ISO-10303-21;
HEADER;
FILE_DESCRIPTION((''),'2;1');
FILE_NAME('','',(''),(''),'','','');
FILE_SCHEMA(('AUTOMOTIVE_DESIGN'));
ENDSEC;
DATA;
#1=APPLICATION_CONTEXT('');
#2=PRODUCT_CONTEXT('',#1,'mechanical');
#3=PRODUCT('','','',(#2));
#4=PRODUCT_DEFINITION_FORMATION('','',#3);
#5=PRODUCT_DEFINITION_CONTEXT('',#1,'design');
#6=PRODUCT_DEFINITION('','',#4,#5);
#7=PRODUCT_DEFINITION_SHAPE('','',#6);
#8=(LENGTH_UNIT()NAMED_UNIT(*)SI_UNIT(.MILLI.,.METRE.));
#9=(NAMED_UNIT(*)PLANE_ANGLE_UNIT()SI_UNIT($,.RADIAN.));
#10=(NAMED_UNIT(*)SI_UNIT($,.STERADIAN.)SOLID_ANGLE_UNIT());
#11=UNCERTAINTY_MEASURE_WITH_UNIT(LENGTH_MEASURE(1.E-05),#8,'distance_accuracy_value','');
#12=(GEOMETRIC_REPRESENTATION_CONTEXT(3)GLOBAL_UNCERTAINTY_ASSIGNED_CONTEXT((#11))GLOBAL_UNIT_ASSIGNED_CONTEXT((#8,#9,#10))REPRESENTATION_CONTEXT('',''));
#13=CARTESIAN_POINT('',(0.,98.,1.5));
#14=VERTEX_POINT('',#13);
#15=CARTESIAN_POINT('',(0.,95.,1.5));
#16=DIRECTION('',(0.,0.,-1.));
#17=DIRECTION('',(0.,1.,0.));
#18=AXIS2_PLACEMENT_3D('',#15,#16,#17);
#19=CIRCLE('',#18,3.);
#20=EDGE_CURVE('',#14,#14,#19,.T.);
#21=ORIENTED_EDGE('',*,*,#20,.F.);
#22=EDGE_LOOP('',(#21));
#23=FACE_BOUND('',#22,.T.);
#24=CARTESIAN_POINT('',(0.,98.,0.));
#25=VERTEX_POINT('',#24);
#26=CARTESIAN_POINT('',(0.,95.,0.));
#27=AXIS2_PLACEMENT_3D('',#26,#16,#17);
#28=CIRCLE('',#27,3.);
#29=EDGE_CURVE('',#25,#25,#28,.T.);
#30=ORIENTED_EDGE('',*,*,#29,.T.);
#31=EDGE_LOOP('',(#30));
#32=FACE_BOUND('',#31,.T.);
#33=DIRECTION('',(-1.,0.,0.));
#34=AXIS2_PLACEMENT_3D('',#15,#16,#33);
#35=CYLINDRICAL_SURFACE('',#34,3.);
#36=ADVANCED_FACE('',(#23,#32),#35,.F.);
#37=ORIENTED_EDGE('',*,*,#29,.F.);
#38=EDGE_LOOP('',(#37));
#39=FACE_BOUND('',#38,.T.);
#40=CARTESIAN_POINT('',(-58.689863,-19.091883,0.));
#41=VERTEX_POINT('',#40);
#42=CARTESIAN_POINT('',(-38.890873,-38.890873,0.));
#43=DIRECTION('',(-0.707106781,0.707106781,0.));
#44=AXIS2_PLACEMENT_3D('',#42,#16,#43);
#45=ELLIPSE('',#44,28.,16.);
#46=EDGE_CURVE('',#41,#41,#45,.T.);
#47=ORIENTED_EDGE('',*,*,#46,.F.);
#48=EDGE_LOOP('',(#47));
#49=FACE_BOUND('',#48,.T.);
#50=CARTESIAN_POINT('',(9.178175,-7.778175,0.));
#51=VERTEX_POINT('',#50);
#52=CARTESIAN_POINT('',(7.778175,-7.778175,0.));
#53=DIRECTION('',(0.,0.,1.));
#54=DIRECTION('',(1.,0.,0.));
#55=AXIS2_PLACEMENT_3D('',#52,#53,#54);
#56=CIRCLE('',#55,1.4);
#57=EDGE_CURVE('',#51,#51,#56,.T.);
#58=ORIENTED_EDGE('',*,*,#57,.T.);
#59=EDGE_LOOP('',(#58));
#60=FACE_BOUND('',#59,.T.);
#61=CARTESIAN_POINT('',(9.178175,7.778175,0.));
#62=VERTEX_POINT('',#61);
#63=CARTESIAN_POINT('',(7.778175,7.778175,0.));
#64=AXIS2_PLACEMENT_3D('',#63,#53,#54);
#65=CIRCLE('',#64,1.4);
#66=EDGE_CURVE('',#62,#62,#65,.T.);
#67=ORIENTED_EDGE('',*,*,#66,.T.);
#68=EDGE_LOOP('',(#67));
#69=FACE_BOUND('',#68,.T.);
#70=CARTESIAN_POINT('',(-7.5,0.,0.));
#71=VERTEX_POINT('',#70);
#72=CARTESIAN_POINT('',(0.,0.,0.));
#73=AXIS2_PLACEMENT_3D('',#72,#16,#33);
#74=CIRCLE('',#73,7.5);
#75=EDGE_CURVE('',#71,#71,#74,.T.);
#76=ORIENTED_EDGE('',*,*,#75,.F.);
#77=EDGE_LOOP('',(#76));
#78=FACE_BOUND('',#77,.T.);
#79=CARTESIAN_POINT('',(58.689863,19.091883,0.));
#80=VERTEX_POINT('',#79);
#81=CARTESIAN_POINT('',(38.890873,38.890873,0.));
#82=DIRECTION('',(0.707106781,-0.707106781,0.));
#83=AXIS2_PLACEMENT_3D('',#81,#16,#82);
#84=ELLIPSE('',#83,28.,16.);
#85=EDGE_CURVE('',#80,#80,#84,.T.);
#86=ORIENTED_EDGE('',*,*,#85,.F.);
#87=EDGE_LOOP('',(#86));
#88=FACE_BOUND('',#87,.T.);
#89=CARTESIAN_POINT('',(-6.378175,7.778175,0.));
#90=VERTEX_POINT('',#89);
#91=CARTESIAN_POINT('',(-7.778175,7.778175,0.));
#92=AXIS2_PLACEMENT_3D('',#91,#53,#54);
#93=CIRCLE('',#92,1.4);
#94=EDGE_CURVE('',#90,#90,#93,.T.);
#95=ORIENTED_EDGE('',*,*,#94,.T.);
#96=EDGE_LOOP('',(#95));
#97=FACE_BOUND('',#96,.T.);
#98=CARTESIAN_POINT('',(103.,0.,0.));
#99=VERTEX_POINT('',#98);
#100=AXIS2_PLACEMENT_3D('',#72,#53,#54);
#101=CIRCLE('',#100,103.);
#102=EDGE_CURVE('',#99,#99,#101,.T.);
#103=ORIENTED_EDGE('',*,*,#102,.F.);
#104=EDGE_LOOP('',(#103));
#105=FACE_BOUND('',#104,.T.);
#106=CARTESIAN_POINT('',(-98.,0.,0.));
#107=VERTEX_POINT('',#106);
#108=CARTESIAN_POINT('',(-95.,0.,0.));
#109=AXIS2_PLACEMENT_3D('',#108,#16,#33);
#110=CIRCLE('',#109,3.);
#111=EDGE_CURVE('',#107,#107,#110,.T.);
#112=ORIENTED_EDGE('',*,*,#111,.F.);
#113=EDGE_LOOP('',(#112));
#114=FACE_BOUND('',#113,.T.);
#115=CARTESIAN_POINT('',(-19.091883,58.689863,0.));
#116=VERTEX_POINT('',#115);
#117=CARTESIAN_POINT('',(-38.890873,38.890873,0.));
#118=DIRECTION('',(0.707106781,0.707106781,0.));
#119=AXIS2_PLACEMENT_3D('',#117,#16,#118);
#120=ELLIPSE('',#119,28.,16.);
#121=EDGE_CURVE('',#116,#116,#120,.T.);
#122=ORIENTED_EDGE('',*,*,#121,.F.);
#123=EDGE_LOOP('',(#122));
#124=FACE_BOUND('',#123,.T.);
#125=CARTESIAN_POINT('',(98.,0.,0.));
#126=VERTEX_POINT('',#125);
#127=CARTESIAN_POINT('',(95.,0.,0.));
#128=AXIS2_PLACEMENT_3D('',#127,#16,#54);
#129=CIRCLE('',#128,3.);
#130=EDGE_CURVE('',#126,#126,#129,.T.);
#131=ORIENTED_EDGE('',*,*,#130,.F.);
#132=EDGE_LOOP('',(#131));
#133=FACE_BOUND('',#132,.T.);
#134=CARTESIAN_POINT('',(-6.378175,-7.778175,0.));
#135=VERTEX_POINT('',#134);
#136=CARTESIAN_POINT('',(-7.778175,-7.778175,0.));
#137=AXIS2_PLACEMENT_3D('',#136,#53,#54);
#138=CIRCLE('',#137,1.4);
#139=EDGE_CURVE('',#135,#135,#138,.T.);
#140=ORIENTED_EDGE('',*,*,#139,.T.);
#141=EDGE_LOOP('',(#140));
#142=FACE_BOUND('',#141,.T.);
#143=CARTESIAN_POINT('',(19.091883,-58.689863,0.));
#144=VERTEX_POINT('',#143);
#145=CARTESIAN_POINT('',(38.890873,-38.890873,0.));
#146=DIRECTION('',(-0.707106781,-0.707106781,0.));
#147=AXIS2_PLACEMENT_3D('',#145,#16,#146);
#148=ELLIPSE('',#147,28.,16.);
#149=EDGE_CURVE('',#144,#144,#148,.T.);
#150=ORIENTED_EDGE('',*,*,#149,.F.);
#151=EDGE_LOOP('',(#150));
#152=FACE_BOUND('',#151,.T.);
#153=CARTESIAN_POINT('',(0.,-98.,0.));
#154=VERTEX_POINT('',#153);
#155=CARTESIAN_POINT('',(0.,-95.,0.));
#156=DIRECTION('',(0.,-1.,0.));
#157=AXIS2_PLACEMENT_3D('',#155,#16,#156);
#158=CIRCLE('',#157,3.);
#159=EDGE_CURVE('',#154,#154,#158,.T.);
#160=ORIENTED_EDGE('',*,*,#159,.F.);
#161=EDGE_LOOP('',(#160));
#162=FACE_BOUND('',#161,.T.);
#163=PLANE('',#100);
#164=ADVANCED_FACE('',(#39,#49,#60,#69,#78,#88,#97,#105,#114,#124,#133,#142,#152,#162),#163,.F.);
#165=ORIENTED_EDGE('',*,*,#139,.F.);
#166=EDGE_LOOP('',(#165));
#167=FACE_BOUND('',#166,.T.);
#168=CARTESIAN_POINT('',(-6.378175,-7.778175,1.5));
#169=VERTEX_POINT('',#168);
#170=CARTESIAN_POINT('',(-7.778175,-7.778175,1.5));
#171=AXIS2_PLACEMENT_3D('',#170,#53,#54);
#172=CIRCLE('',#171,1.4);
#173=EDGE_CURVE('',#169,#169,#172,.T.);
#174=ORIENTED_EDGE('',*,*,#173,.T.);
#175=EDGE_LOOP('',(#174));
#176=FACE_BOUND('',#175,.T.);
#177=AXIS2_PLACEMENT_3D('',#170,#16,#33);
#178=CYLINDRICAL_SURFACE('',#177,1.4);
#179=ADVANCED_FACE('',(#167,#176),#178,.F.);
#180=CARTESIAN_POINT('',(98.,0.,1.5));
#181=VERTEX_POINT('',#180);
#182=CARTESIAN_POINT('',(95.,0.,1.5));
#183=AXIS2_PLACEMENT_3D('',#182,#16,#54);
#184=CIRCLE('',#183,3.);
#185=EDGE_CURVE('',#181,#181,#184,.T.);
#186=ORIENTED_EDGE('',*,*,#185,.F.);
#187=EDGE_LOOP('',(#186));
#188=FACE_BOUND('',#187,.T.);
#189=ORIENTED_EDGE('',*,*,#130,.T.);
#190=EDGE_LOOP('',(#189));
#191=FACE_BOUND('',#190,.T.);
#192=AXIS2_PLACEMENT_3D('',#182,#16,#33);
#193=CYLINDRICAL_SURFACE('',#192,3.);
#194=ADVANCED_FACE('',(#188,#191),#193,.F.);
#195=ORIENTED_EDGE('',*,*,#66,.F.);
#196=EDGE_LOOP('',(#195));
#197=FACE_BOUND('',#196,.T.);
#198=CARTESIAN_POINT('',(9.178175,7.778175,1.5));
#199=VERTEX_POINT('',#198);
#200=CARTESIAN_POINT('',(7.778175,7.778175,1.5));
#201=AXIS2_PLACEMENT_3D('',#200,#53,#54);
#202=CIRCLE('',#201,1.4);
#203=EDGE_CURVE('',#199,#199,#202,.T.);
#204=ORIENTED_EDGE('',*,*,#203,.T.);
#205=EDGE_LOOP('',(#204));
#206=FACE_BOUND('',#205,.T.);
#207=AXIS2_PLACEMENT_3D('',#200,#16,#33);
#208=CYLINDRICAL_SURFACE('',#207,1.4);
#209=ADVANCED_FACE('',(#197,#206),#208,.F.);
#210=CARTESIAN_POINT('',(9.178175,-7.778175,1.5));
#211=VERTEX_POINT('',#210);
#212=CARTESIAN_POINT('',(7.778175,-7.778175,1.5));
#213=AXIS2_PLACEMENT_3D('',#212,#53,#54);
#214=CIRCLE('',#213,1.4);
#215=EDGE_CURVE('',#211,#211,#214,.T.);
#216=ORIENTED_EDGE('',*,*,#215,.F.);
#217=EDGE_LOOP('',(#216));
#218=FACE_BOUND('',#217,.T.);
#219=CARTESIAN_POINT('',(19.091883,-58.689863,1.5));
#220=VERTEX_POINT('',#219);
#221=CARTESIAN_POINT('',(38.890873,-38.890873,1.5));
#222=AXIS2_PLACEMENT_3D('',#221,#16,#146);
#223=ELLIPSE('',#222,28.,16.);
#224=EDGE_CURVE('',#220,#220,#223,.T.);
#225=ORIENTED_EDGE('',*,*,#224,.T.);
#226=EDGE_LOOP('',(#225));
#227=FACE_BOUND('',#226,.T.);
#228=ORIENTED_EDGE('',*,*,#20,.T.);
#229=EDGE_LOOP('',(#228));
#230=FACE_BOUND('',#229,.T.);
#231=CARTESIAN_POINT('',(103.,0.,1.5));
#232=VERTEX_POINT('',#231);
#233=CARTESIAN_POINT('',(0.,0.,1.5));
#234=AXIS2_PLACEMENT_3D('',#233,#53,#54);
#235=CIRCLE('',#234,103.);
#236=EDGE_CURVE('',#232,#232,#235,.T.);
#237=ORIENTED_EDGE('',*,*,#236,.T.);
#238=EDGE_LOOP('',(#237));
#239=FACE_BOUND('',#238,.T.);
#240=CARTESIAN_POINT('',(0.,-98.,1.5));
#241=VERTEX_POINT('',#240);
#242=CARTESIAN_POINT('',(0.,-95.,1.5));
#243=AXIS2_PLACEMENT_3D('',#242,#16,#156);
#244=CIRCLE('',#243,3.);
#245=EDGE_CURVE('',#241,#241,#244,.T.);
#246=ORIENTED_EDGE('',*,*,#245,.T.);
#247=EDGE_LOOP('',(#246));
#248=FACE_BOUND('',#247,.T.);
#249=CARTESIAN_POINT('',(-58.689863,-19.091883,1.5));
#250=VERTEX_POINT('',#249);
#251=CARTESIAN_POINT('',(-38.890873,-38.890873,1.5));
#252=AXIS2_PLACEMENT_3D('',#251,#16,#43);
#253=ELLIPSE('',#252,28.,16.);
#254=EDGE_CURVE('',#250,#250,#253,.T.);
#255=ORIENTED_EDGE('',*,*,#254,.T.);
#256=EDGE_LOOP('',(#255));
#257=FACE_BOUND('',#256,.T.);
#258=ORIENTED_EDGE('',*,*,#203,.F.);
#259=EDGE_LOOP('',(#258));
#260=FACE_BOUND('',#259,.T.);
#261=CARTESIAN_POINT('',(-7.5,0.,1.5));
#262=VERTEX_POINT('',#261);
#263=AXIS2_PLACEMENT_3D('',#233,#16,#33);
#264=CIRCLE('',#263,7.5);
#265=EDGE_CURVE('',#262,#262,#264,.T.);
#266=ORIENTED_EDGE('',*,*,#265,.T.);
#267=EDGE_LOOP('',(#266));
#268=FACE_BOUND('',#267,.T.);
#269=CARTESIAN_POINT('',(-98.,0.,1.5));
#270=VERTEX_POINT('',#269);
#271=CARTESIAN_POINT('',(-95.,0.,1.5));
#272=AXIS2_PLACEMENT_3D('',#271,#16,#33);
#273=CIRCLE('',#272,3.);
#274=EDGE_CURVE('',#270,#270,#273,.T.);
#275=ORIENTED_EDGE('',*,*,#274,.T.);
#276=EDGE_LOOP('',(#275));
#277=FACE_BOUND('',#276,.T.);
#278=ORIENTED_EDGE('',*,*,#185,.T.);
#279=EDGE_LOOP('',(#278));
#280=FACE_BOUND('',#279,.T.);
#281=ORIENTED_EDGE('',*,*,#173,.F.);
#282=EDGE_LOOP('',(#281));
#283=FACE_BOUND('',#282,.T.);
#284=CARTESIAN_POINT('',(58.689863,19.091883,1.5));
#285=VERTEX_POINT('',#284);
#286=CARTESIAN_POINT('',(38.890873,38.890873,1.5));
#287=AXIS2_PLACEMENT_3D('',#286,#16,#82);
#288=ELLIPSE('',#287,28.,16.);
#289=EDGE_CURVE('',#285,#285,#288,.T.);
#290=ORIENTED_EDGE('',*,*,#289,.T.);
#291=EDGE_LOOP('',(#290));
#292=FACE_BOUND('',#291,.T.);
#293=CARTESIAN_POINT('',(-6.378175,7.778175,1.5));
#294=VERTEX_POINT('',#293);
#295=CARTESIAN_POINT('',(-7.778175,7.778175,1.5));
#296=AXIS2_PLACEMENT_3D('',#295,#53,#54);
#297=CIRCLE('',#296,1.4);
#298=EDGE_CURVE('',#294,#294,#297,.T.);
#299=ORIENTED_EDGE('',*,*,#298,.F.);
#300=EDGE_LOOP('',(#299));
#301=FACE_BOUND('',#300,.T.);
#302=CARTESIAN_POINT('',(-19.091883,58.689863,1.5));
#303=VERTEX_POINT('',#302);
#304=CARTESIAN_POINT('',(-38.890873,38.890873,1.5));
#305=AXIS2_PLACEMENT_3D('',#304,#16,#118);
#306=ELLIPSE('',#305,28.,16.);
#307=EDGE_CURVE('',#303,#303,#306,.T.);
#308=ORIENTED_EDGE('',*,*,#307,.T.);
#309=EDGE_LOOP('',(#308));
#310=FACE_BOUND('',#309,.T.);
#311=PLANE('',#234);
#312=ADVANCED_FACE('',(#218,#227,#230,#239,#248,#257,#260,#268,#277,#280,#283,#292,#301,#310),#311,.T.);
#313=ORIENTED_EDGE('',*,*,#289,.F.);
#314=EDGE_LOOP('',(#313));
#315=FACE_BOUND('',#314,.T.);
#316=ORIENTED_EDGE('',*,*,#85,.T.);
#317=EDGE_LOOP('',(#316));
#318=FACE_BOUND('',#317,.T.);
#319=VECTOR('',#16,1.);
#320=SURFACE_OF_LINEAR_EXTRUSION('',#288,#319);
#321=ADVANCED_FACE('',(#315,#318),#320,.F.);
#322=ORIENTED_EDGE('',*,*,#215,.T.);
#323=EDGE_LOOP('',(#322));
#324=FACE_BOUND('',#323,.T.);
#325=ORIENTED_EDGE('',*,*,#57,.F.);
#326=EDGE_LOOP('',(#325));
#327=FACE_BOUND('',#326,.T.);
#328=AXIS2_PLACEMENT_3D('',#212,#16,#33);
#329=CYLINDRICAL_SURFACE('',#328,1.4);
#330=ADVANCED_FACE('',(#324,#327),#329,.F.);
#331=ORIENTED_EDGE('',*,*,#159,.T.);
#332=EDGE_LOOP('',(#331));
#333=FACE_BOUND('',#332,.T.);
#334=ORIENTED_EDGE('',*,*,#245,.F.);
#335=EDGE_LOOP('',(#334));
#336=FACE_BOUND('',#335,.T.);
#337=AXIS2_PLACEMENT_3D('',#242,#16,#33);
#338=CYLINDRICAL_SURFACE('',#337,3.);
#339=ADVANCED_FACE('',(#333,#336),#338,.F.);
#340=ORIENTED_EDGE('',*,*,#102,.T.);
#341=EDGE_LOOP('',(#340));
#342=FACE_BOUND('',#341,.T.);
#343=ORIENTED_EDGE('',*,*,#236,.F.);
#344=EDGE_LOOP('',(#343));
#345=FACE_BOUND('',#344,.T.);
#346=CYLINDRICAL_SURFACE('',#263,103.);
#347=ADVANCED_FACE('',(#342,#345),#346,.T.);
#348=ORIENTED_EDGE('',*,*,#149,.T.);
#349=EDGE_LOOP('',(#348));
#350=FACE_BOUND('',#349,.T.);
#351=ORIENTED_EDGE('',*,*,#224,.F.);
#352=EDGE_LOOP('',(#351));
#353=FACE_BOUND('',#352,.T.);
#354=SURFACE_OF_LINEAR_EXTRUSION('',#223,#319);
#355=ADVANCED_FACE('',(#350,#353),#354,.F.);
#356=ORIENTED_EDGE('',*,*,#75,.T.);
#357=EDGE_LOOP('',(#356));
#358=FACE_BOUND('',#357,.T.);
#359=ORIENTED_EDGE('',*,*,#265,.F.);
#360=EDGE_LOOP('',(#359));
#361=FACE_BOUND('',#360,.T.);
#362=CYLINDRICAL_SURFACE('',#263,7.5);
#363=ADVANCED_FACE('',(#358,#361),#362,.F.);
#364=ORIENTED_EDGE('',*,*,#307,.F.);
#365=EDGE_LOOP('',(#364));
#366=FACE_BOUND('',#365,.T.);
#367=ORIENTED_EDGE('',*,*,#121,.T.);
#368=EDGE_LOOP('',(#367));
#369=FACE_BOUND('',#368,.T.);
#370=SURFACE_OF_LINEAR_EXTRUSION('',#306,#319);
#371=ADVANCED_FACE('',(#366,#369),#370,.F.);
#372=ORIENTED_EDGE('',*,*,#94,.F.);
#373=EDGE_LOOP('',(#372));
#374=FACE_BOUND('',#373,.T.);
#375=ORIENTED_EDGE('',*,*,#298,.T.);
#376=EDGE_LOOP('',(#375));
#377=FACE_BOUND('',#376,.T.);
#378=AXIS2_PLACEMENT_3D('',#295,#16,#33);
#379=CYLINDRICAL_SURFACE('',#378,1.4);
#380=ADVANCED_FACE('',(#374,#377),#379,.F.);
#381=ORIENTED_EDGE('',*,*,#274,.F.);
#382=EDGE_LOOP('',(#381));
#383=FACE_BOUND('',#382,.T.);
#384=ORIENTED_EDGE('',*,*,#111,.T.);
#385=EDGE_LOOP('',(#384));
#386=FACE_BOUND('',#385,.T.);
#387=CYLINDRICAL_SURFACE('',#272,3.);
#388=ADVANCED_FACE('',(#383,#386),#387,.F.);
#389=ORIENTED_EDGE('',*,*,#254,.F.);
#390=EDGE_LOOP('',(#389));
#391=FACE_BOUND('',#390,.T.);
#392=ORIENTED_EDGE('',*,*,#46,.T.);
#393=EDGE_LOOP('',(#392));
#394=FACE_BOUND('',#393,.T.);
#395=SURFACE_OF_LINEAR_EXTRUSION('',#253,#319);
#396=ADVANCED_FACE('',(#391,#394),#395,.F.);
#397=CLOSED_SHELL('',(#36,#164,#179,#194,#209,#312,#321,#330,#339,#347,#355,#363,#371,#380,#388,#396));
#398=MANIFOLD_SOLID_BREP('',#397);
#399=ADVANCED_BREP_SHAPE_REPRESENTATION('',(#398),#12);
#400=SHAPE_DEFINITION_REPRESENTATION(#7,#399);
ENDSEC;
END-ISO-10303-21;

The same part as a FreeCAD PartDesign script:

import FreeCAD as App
import Part
import Sketcher

V = App.Vector

doc = App.newDocument("Part")
params = doc.addObject("Spreadsheet::Sheet", "Params")
for row, (alias, value) in enumerate([
    ("sketch1_diameter", "206 mm"),
    ("pad1_length", "1.5 mm"),
    ("sketch2_diameter", "6 mm"),
    ("sketch4_diameter", "15 mm"),
    ("sketch5_diameter", "2.8 mm"),
], start=1):
    params.set(f"A{row}", alias)
    params.set(f"B{row}", "=" + value)
    params.setAlias(f"B{row}", alias)

body = doc.addObject("PartDesign::Body", "Body")

# Sketch on XY plane
sketch1 = doc.addObject("Sketcher::SketchObject", "Sketch")
body.addObject(sketch1)
sketch1.AttachmentSupport = (doc.XY_Plane, [""])
sketch1.MapMode = "FlatFace"
sketch1.addGeometry(Part.Circle(V(0, 0, 0), V(0, 0, 1), 103), False)
sketch1.addConstraint(Sketcher.Constraint("Coincident", 0, 3, -1, 1))
sketch1.addConstraint(Sketcher.Constraint("Diameter", 0, 206.0))
sketch1.setExpression("Constraints[1]", "Params.sketch1_diameter")
pad1 = doc.addObject("PartDesign::Pad", "Pad")
body.addObject(pad1)
pad1.Profile = sketch1
pad1.setExpression("Length", "Params.pad1_length")

# Sketch on XY plane
sketch2 = doc.addObject("Sketcher::SketchObject", "Sketch001")
body.addObject(sketch2)
sketch2.AttachmentSupport = (doc.XY_Plane, [""])
sketch2.MapMode = "FlatFace"
sketch2.addGeometry(Part.Circle(V(-95, 0, 0), V(0, 0, 1), 3), False)
sketch2.addConstraint(Sketcher.Constraint("PointOnObject", 0, 3, -1))
sketch2.addConstraint(Sketcher.Constraint("Diameter", 0, 6.0))
sketch2.addConstraint(Sketcher.Constraint("DistanceX", 0, 3, -1, 1, 95.0))
sketch2.setExpression("Constraints[1]", "Params.sketch2_diameter")
pocket1 = doc.addObject("PartDesign::Pocket", "Pocket")
body.addObject(pocket1)
pocket1.Profile = sketch2
pocket1.Type = "ThroughAll"
pocket1.Reversed = True

# Sketch on XY plane
sketch3 = doc.addObject("Sketcher::SketchObject", "Sketch002")
body.addObject(sketch3)
sketch3.AttachmentSupport = (doc.XY_Plane, [""])
sketch3.MapMode = "FlatFace"
sketch3.addGeometry(Part.Ellipse(V(-19.091883, 58.689863, 0), V(-50.204581, 50.204581, 0), V(-38.890873, 38.890873, 0)), False)
sketch3.addConstraint(Sketcher.Constraint("Block", 0))
pocket2 = doc.addObject("PartDesign::Pocket", "Pocket001")
body.addObject(pocket2)
pocket2.Profile = sketch3
pocket2.Type = "ThroughAll"
pocket2.Reversed = True

# Sketch on XY plane
sketch4 = doc.addObject("Sketcher::SketchObject", "Sketch003")
body.addObject(sketch4)
sketch4.AttachmentSupport = (doc.XY_Plane, [""])
sketch4.MapMode = "FlatFace"
sketch4.addGeometry(Part.Circle(V(0, 0, 0), V(0, 0, 1), 8), False)
sketch4.addConstraint(Sketcher.Constraint("Coincident", 0, 3, -1, 1))
sketch4.addConstraint(Sketcher.Constraint("Diameter", 0, 15.0))
sketch4.setExpression("Constraints[1]", "Params.sketch4_diameter")
pocket3 = doc.addObject("PartDesign::Pocket", "Pocket002")
body.addObject(pocket3)
pocket3.Profile = sketch4
pocket3.Type = "ThroughAll"
pocket3.Reversed = True
doc.recompute()

polarpattern = doc.addObject("PartDesign::PolarPattern", "PolarPattern")
body.addObject(polarpattern)
polarpattern.Originals = [pocket1]
polarpattern.Axis = (doc.Z_Axis, [""])
polarpattern.Angle = 360
polarpattern.Occurrences = 4
body.Tip = polarpattern
doc.recompute()

polarpattern2 = doc.addObject("PartDesign::PolarPattern", "PolarPattern001")
body.addObject(polarpattern2)
polarpattern2.Originals = [pocket2]
polarpattern2.Axis = (doc.Z_Axis, [""])
polarpattern2.Angle = 360
polarpattern2.Occurrences = 4
body.Tip = polarpattern2

# Sketch on XY plane
sketch5 = doc.addObject("Sketcher::SketchObject", "Sketch004")
body.addObject(sketch5)
sketch5.AttachmentSupport = (doc.XY_Plane, [""])
sketch5.MapMode = "FlatFace"
sketch5.addGeometry(Part.Circle(V(-7.8, -7.8, 0), V(0, 0, 1), 1.4), False)
sketch5.addGeometry(Part.Circle(V(-7.8, 7.8, 0), V(0, 0, 1), 1.4), False)
sketch5.addGeometry(Part.Circle(V(7.8, 7.8, 0), V(0, 0, 1), 1.4), False)
sketch5.addGeometry(Part.Circle(V(7.8, -7.8, 0), V(0, 0, 1), 1.4), False)
sketch5.addConstraint(Sketcher.Constraint("Equal", 0, 1))
sketch5.addConstraint(Sketcher.Constraint("Equal", 1, 2))
sketch5.addConstraint(Sketcher.Constraint("Equal", 2, 3))
sketch5.addConstraint(Sketcher.Constraint("Symmetric", 0, 3, 2, 3, -1, 1))
sketch5.addConstraint(Sketcher.Constraint("Symmetric", 1, 3, 3, 3, -1, 1))
sketch5.addConstraint(Sketcher.Constraint("Symmetric", 1, 3, 2, 3, -2))
sketch5.addConstraint(Sketcher.Constraint("Diameter", 0, 2.8))
sketch5.addConstraint(Sketcher.Constraint("DistanceY", 0, 3, 1, 3, 15.556349))
sketch5.addConstraint(Sketcher.Constraint("DistanceX", 1, 3, 2, 3, 15.556349))
sketch5.setExpression("Constraints[6]", "Params.sketch5_diameter")
pocket4 = doc.addObject("PartDesign::Pocket", "Pocket003")
body.addObject(pocket4)
pocket4.Profile = sketch5
pocket4.Type = "ThroughAll"
pocket4.Reversed = True

doc.recompute()
